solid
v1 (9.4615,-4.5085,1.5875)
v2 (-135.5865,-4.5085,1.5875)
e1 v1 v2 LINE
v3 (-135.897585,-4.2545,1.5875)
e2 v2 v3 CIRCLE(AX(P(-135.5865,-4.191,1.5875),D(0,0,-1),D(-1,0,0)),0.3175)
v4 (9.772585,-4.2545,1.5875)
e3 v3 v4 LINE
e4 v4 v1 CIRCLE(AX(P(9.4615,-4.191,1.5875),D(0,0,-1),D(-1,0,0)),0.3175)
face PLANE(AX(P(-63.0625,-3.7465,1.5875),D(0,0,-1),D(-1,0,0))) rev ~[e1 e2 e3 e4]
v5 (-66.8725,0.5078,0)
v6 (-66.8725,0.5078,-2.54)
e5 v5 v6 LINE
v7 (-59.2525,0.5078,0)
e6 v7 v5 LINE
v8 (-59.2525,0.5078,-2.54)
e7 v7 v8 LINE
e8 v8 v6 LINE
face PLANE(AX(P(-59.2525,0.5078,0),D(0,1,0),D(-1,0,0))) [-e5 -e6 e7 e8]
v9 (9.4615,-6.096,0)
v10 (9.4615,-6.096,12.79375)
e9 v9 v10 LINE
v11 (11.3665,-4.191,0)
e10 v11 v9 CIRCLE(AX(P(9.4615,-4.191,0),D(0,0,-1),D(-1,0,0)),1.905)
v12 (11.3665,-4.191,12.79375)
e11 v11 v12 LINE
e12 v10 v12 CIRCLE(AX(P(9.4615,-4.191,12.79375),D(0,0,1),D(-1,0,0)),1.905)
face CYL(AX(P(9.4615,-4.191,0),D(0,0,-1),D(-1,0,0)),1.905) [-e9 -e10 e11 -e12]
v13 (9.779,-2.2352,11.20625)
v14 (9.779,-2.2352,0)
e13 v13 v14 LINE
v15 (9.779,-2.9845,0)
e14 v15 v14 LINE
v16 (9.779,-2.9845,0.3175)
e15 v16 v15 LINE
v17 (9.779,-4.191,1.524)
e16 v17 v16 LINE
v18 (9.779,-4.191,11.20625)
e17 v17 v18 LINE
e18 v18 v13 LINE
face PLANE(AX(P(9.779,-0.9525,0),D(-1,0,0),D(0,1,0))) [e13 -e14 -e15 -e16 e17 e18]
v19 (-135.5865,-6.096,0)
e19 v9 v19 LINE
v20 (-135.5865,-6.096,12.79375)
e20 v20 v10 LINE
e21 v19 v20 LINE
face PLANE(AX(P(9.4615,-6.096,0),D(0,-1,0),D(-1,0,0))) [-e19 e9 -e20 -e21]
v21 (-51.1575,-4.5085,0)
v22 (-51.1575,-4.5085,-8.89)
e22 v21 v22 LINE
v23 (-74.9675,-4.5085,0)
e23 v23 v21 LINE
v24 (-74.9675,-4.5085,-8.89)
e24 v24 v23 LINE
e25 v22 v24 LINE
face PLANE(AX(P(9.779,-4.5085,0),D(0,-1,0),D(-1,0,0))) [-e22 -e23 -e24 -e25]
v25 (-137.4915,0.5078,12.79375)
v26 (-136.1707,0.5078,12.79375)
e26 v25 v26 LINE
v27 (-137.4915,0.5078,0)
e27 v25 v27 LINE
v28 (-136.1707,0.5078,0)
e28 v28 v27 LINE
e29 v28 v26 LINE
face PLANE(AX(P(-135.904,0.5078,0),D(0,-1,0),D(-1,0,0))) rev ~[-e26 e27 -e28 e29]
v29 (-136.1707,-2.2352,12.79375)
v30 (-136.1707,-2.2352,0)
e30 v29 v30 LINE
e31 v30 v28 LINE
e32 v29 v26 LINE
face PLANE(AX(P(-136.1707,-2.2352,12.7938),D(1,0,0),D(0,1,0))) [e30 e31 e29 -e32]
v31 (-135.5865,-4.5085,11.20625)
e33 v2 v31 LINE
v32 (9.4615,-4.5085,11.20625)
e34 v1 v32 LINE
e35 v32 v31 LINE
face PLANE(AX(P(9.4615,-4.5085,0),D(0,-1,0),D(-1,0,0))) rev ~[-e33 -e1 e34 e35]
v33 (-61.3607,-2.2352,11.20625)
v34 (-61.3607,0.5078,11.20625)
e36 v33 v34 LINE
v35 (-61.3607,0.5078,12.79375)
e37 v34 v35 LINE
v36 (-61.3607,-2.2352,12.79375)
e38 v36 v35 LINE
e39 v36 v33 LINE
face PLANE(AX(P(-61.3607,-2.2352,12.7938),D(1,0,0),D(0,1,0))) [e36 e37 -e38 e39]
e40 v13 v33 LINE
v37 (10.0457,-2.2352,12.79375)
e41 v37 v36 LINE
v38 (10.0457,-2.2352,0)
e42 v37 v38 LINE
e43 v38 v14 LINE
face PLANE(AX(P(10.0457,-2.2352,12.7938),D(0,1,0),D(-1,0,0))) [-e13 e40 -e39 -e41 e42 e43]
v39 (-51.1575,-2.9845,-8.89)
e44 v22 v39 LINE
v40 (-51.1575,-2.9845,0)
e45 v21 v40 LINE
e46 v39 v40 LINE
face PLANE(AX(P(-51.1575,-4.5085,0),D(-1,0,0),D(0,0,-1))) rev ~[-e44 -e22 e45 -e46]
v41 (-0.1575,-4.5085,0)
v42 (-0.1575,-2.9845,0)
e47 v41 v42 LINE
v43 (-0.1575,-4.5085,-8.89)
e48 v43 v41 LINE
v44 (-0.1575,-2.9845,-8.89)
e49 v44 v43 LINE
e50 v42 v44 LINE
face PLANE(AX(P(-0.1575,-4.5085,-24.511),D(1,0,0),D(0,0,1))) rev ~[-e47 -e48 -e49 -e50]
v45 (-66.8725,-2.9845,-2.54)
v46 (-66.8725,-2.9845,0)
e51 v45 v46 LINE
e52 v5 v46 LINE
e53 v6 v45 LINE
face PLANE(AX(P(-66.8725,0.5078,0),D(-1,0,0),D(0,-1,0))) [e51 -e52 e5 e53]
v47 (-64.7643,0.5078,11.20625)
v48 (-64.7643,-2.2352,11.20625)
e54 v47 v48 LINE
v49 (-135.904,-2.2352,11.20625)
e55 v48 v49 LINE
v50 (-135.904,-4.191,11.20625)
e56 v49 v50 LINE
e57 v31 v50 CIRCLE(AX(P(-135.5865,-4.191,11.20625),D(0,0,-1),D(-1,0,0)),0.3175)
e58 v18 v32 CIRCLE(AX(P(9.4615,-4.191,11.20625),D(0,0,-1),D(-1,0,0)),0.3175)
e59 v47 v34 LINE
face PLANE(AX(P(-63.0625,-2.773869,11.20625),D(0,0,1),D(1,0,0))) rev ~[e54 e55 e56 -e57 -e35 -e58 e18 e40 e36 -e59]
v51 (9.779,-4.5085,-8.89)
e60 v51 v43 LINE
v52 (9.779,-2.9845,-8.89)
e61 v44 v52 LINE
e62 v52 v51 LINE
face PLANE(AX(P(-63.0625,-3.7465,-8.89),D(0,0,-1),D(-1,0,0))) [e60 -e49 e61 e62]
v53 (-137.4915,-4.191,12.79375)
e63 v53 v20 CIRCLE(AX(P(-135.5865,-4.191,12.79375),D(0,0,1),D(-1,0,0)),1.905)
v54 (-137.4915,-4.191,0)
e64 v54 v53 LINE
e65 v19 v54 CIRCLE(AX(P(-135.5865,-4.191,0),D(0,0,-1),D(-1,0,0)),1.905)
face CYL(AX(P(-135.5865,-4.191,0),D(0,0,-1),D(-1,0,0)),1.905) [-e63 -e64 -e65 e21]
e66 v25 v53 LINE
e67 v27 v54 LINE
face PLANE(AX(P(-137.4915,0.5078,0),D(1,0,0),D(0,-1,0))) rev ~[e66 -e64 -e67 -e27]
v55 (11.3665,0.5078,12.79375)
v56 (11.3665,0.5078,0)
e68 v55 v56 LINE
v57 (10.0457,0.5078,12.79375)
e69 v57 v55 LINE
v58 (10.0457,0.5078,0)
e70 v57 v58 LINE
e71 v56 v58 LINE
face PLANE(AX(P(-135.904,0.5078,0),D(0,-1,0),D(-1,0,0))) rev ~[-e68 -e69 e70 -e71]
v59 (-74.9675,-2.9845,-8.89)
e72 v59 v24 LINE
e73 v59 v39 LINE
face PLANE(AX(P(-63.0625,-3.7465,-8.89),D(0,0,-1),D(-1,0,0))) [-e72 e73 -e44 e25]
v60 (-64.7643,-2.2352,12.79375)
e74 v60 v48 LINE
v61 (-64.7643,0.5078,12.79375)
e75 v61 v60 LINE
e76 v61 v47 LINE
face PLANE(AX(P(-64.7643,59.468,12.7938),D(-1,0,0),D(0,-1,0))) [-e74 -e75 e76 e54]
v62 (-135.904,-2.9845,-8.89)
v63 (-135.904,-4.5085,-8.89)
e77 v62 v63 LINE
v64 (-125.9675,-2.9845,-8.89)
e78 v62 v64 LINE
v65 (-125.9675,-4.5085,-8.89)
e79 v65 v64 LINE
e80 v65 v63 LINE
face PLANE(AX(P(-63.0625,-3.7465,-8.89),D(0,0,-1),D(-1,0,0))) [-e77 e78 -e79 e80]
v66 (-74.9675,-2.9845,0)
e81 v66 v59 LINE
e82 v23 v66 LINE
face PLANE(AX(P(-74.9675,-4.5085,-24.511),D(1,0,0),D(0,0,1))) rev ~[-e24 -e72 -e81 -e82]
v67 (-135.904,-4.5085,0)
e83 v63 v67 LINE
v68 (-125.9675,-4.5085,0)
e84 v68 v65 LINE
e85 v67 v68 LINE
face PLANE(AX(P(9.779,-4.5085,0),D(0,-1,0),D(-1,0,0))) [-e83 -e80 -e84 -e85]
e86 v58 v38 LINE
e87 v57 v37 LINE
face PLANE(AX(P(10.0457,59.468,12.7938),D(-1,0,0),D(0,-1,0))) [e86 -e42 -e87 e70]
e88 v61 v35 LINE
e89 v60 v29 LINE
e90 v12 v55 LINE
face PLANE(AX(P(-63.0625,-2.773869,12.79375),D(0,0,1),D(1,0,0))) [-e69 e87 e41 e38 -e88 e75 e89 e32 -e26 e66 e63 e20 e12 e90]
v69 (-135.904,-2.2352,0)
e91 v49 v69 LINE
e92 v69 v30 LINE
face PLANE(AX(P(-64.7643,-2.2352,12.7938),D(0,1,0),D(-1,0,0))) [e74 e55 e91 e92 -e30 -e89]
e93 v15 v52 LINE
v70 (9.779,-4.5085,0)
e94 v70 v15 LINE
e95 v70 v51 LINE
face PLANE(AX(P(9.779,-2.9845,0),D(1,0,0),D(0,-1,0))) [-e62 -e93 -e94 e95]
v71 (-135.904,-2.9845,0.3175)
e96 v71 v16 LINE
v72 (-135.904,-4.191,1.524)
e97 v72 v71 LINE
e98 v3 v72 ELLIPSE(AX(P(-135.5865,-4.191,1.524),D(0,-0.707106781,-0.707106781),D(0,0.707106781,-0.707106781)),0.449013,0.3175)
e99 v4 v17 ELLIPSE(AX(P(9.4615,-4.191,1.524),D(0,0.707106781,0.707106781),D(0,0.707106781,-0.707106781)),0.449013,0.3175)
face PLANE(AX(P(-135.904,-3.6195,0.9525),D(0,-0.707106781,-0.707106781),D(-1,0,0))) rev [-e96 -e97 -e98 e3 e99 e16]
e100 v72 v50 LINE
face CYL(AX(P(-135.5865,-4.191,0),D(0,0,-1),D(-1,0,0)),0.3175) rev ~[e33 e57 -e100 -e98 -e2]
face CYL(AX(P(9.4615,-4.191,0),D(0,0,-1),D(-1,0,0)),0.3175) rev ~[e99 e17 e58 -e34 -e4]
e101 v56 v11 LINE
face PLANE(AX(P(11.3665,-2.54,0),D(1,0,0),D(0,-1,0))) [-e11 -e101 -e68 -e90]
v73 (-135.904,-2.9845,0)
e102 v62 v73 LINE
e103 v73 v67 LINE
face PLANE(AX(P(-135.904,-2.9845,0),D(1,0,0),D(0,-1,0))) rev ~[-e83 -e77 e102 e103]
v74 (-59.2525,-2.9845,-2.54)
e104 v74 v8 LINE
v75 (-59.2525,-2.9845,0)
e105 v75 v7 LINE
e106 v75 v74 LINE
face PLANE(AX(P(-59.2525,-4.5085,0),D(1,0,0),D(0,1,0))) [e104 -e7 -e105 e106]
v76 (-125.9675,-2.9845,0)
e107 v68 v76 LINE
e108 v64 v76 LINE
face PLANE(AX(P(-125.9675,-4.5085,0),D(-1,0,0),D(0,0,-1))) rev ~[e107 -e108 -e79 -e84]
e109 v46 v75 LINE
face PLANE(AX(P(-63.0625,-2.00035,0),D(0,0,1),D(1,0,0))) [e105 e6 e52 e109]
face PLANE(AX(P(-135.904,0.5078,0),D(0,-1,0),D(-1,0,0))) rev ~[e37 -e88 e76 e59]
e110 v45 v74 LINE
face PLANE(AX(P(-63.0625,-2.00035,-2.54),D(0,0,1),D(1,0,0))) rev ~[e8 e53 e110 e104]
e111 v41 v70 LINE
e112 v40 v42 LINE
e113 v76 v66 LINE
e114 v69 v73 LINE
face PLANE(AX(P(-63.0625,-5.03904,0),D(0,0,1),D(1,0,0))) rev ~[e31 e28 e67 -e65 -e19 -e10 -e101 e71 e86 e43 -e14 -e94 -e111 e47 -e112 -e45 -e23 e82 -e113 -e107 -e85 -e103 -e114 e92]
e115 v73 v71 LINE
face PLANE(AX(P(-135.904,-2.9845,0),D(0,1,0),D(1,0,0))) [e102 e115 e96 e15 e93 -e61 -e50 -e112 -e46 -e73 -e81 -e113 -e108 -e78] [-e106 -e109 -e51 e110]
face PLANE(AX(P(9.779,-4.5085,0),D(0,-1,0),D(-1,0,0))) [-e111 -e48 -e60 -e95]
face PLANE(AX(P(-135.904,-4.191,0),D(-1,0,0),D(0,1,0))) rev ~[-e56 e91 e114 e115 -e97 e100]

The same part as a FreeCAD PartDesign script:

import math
import FreeCAD as App
import Part
import Sketcher
from FreeCAD import Vector
Q = App.Units.Quantity


def edges_at(feature, points):
    """Names of the edges that pass closest to the given points."""
    edges = feature.Shape.Edges
    near = lambda p: min(range(len(edges)), key=lambda i: edges[i].distToShape(Part.Vertex(*p))[0])
    return sorted({f"Edge{near(p) + 1}" for p in points})


def add_polygon(sketch, points):
    """Adds a closed chain of lines whose ends are joined by coincident constraints."""
    first, n = sketch.GeometryCount, len(points)
    for a, b in zip(points, points[1:] + points[:1]):
        sketch.addGeometry(Part.LineSegment(App.Vector(*a, 0), App.Vector(*b, 0)), False)
    for i in range(n):
        sketch.addConstraint(Sketcher.Constraint("Coincident", first + i, 2, first + (i + 1) % n, 1))

doc = App.newDocument("Part")
body = doc.addObject("PartDesign::Body", "Body")

# Sketch on XY plane
sketch1 = body.newObject("Sketcher::SketchObject", "Sketch")
sketch1.AttachmentSupport = (doc.getObject("XY_Plane"), [""])
sketch1.MapMode = "FlatFace"
sketch1.addGeometry(Part.LineSegment(Vector(-135.9, 0.51, 0), Vector(-137.49, 0.51, 0)), False)
sketch1.addGeometry(Part.LineSegment(Vector(-137.49, 0.51, 0), Vector(-137.49, -4.19, 0)), False)
sketch1.addGeometry(Part.ArcOfCircle(Part.Circle(Vector(-135.59, -4.19, 0), Vector(0, 0, 1), 1.91), math.radians(180), math.radians(270)), False)
sketch1.addGeometry(Part.LineSegment(Vector(-135.59, -6.1, 0), Vector(9.46, -6.1, 0)), False)
sketch1.addGeometry(Part.ArcOfCircle(Part.Circle(Vector(9.46, -4.19, 0), Vector(0, 0, 1), 1.91), math.radians(-90), math.radians(0)), False)
sketch1.addGeometry(Part.LineSegment(Vector(11.37, -4.19, 0), Vector(11.37, 0.51, 0)), False)
sketch1.addGeometry(Part.LineSegment(Vector(11.37, 0.51, 0), Vector(9.78, 0.51, 0)), False)
sketch1.addGeometry(Part.LineSegment(Vector(9.78, 0.51, 0), Vector(9.78, -4.19, 0)), False)
sketch1.addGeometry(Part.ArcOfCircle(Part.Circle(Vector(9.46, -4.19, 0), Vector(0, 0, 1), 0.32), math.radians(-90), math.radians(0)), False)
sketch1.addGeometry(Part.LineSegment(Vector(9.46, -4.51, 0), Vector(-135.59, -4.51, 0)), False)
sketch1.addGeometry(Part.ArcOfCircle(Part.Circle(Vector(-135.59, -4.19, 0), Vector(0, 0, 1), 0.32), math.radians(180), math.radians(270)), False)
sketch1.addGeometry(Part.LineSegment(Vector(-135.9, -4.19, 0), Vector(-135.9, 0.51, 0)), False)
sketch1.addConstraint(Sketcher.Constraint("Coincident", 0, 2, 1, 1))
sketch1.addConstraint(Sketcher.Constraint("Tangent", 1, 2, 2, 1))
sketch1.addConstraint(Sketcher.Constraint("Tangent", 2, 2, 3, 1))
sketch1.addConstraint(Sketcher.Constraint("Tangent", 3, 2, 4, 1))
sketch1.addConstraint(Sketcher.Constraint("Tangent", 4, 2, 5, 1))
sketch1.addConstraint(Sketcher.Constraint("Coincident", 5, 2, 6, 1))
sketch1.addConstraint(Sketcher.Constraint("Coincident", 6, 2, 7, 1))
sketch1.addConstraint(Sketcher.Constraint("Tangent", 7, 2, 8, 2))
sketch1.addConstraint(Sketcher.Constraint("Tangent", 8, 1, 9, 1))
sketch1.addConstraint(Sketcher.Constraint("Tangent", 9, 2, 10, 2))
sketch1.addConstraint(Sketcher.Constraint("Tangent", 10, 1, 11, 1))
sketch1.addConstraint(Sketcher.Constraint("Coincident", 11, 2, 0, 1))
sketch1.addConstraint(Sketcher.Constraint("Horizontal", 0))
sketch1.addConstraint(Sketcher.Constraint("Vertical", 1))
sketch1.addConstraint(Sketcher.Constraint("Horizontal", 3))
sketch1.addConstraint(Sketcher.Constraint("Vertical", 5))
sketch1.addConstraint(Sketcher.Constraint("Horizontal", 6))
sketch1.addConstraint(Sketcher.Constraint("Vertical", 7))
sketch1.addConstraint(Sketcher.Constraint("Horizontal", 9))
sketch1.addConstraint(Sketcher.Constraint("Vertical", 11))
sketch1.addConstraint(Sketcher.Constraint("Coincident", 8, 3, 4, 3))
sketch1.addConstraint(Sketcher.Constraint("Coincident", 10, 3, 2, 3))
sketch1.addConstraint(Sketcher.Constraint("Equal", 2, 4))
sketch1.addConstraint(Sketcher.Constraint("Horizontal", 0, 2, 5, 2))
sketch1.addConstraint(Sketcher.Constraint("Radius", 2, Q("0.075 in")))
sketch1.addConstraint(Sketcher.Constraint("Radius", 8, Q("0.0125 in")))
sketch1.addConstraint(Sketcher.Constraint("DistanceY", 1, 2, 1, 1, Q("0.185 in")))
sketch1.addConstraint(Sketcher.Constraint("DistanceY", -1, 1, 0, 2, Q("0.02 in")))
sketch1.addConstraint(Sketcher.Constraint("DistanceX", -1, 1, 6, 2, Q("0.385 in")))
sketch1.addConstraint(Sketcher.Constraint("DistanceX", 3, 1, 3, 2, 145.048))
pad1 = body.newObject("PartDesign::Pad", "Pad")
pad1.Profile = sketch1
pad1.Length = 12

# Sketch on XY plane
sketch2 = body.newObject("Sketcher::SketchObject", "Sketch001")
sketch2.AttachmentSupport = (doc.getObject("XY_Plane"), [""])
sketch2.MapMode = "FlatFace"
sketch2.AttachmentOffset = App.Placement(Vector(0, 0, 12), App.Rotation())
sketch2.addGeometry(Part.LineSegment(Vector(11.4, 0.5, 0), Vector(-137.5, 0.5, 0)), False)
sketch2.addGeometry(Part.LineSegment(Vector(-137.5, 0.5, 0), Vector(-137.5, -4.2, 0)), False)
sketch2.addGeometry(Part.ArcOfCircle(Part.Circle(Vector(-135.6, -4.2, 0), Vector(0, 0, 1), 1.9), math.radians(180), math.radians(270)), False)
sketch2.addGeometry(Part.LineSegment(Vector(-135.6, -6.1, 0), Vector(9.5, -6.1, 0)), False)
sketch2.addGeometry(Part.ArcOfCircle(Part.Circle(Vector(9.5, -4.2, 0), Vector(0, 0, 1), 1.9), math.radians(-90), math.radians(0)), False)
sketch2.addGeometry(Part.LineSegment(Vector(11.4, -4.2, 0), Vector(11.4, 0.5, 0)), False)
sketch2.addConstraint(Sketcher.Constraint("Coincident", 0, 2, 1, 1))
sketch2.addConstraint(Sketcher.Constraint("Tangent", 1, 2, 2, 1))
sketch2.addConstraint(Sketcher.Constraint("Tangent", 2, 2, 3, 1))
sketch2.addConstraint(Sketcher.Constraint("Tangent", 3, 2, 4, 1))
sketch2.addConstraint(Sketcher.Constraint("Tangent", 4, 2, 5, 1))
sketch2.addConstraint(Sketcher.Constraint("Coincident", 5, 2, 0, 1))
sketch2.addConstraint(Sketcher.Constraint("Horizontal", 0))
sketch2.addConstraint(Sketcher.Constraint("Vertical", 1))
sketch2.addConstraint(Sketcher.Constraint("Horizontal", 3))
sketch2.addConstraint(Sketcher.Constraint("Vertical", 5))
sketch2.addConstraint(Sketcher.Constraint("Equal", 2, 4))
sketch2.addConstraint(Sketcher.Constraint("Radius", 2, Q("0.075 in")))
sketch2.addConstraint(Sketcher.Constraint("DistanceY", 1, 2, 1, 1, Q("0.185 in")))
sketch2.addConstraint(Sketcher.Constraint("DistanceY", -1, 1, 0, 2, Q("0.02 in")))
sketch2.addConstraint(Sketcher.Constraint("DistanceX", 0, 2, 0, 1, 148.858))
sketch2.addConstraint(Sketcher.Constraint("DistanceX", -1, 1, 4, 3, Q("0.3725 in")))
pad2 = body.newObject("PartDesign::Pad", "Pad001")
pad2.Profile = sketch2
pad2.Length = Q("0.0625 in")
pad2.Midplane = True

# Sketch on XY plane
sketch3 = body.newObject("Sketcher::SketchObject", "Sketch002")
sketch3.AttachmentSupport = (doc.getObject("XY_Plane"), [""])
sketch3.MapMode = "FlatFace"
sketch3.AttachmentOffset = App.Placement(Vector(0, 0, 0.5036929 * 25.4), App.Rotation())
add_polygon(sketch3, [(-136, 59), (-136, -2), (-65, -2), (-65, 59)])  # lines 0-3
add_polygon(sketch3, [(10, -2), (10, 59), (-61, 59), (-61, -2)])  # lines 4-7
sketch3.addConstraint(Sketcher.Constraint("Vertical", 0))
sketch3.addConstraint(Sketcher.Constraint("Horizontal", 1))
sketch3.addConstraint(Sketcher.Constraint("Vertical", 2))
sketch3.addConstraint(Sketcher.Constraint("Horizontal", 3))
sketch3.addConstraint(Sketcher.Constraint("Vertical", 4))
sketch3.addConstraint(Sketcher.Constraint("Horizontal", 5))
sketch3.addConstraint(Sketcher.Constraint("Vertical", 6))
sketch3.addConstraint(Sketcher.Constraint("Horizontal", 7))
sketch3.addConstraint(Sketcher.Constraint("Horizontal", 3, 2, 4, 2))
sketch3.addConstraint(Sketcher.Constraint("Horizontal", 1, 2, 6, 2))
sketch3.addConstraint(Sketcher.Constraint("Equal", 3, 5))
sketch3.addConstraint(Sketcher.Constraint("DistanceY", 0, 2, -1, 1, Q("0.088 in")))
sketch3.addConstraint(Sketcher.Constraint("DistanceX", 2, 2, 5, 2, Q("0.134 in")))
sketch3.addConstraint(Sketcher.Constraint("DistanceX", 1, 1, 1, 2, 71.4064))
sketch3.addConstraint(Sketcher.Constraint("DistanceY", 0, 2, 0, 1, 61.7032))
sketch3.addConstraint(Sketcher.Constraint("DistanceX", -1, 1, 4, 2, Q("0.3955 in")))
pocket1 = body.newObject("PartDesign::Pocket", "Pocket")
pocket1.Profile = sketch3
pocket1.Length = Q("0.5036929 in")

# Sketch on XY plane
sketch4 = body.newObject("Sketcher::SketchObject", "Sketch003")
sketch4.AttachmentSupport = (doc.getObject("XY_Plane"), [""])
sketch4.MapMode = "FlatFace"
add_polygon(sketch4, [(-135.9, -4.5), (-135.9, -3), (9.8, -3), (9.8, -4.5)])  # lines 0-3
sketch4.addConstraint(Sketcher.Constraint("Vertical", 0))
sketch4.addConstraint(Sketcher.Constraint("Horizontal", 1))
sketch4.addConstraint(Sketcher.Constraint("Vertical", 2))
sketch4.addConstraint(Sketcher.Constraint("Horizontal", 3))
sketch4.addConstraint(Sketcher.Constraint("DistanceY", 0, 1, 0, 2, Q("0.06 in")))
sketch4.addConstraint(Sketcher.Constraint("DistanceX", -1, 1, 1, 2, Q("0.385 in")))
sketch4.addConstraint(Sketcher.Constraint("DistanceX", 1, 1, 1, 2, 145.683))
sketch4.addConstraint(Sketcher.Constraint("DistanceY", 0, 2, -1, 1, Q("0.1175 in")))
pad3 = body.newObject("PartDesign::Pad", "Pad002")
pad3.Profile = sketch4
pad3.Type = "TwoLengths"
pad3.Length = Q("0.0625 in")
pad3.Length2 = Q("0.35 in")
doc.recompute()

chamfer = body.newObject("PartDesign::Chamfer", "Chamfer")
chamfer.Base = (pad3, edges_at(pad3, [(-63.062, -2.985, 1.587)]))
chamfer.Size = Q("0.05 in")

# Sketch on XY plane
sketch5 = body.newObject("Sketcher::SketchObject", "Sketch004")
sketch5.AttachmentSupport = (doc.getObject("XY_Plane"), [""])
sketch5.MapMode = "FlatFace"
add_polygon(sketch5, [(-59, 1), (-59, -5), (-67, -5), (-67, 1)])  # lines 0-3
sketch5.addConstraint(Sketcher.Constraint("Vertical", 0))
sketch5.addConstraint(Sketcher.Constraint("Horizontal", 1))
sketch5.addConstraint(Sketcher.Constraint("Vertical", 2))
sketch5.addConstraint(Sketcher.Constraint("Horizontal", 3))
sketch5.addConstraint(Sketcher.Constraint("DistanceX", 1, 2, 1, 1, Q("0.3 in")))
sketch5.addConstraint(Sketcher.Constraint("DistanceY", -1, 1, 2, 2, Q("0.02 in")))
sketch5.addConstraint(Sketcher.Constraint("DistanceY", 0, 2, 0, 1, Q("0.1975 in")))
sketch5.addConstraint(Sketcher.Constraint("DistanceX", 0, 2, -1, 1, 59.2525))
pad4 = body.newObject("PartDesign::Pad", "Pad003")
pad4.Profile = sketch5
pad4.Length = Q("0.1 in")
pad4.Reversed = True

# Sketch on XZ plane
sketch6 = body.newObject("Sketcher::SketchObject", "Sketch005")
sketch6.AttachmentSupport = (doc.getObject("XZ_Plane"), [""])
sketch6.MapMode = "FlatFace"
sketch6.AttachmentOffset = App.Placement(Vector(0, 0, 0.1775 * 25.4), App.Rotation())
add_polygon(sketch6, [(-51, 0), (-51, -25), (0, -25), (0, 0)])  # lines 0-3
add_polygon(sketch6, [(-126, 0), (-126, -25), (-75, -25), (-75, 0)])  # lines 4-7
sketch6.addConstraint(Sketcher.Constraint("Vertical", 0))
sketch6.addConstraint(Sketcher.Constraint("Horizontal", 1))
sketch6.addConstraint(Sketcher.Constraint("Vertical", 2))
sketch6.addConstraint(Sketcher.Constraint("Horizontal", 3))
sketch6.addConstraint(Sketcher.Constraint("Vertical", 4))
sketch6.addConstraint(Sketcher.Constraint("Horizontal", 5))
sketch6.addConstraint(Sketcher.Constraint("Vertical", 6))
sketch6.addConstraint(Sketcher.Constraint("Horizontal", 7))
sketch6.addConstraint(Sketcher.Constraint("PointOnObject", 2, 2, -1))
sketch6.addConstraint(Sketcher.Constraint("PointOnObject", 6, 2, -1))
sketch6.addConstraint(Sketcher.Constraint("Horizontal", 1, 2, 4, 2))
sketch6.addConstraint(Sketcher.Constraint("Equal", 3, 5))
sketch6.addConstraint(Sketcher.Constraint("DistanceY", 0, 2, 0, 1, Q("0.965 in")))
sketch6.addConstraint(Sketcher.Constraint("DistanceX", 1, 1, 1, 2, 51.0))
sketch6.addConstraint(Sketcher.Constraint("DistanceX", 1, 2, -1, 1, Q("0.0062 in")))
sketch6.addConstraint(Sketcher.Constraint("DistanceX", 5, 2, 0, 2, Q("0.9374 in")))
pocket2 = body.newObject("PartDesign::Pocket", "Pocket001")
pocket2.Profile = sketch6
pocket2.Type = "ThroughAll"

doc.recompute()
